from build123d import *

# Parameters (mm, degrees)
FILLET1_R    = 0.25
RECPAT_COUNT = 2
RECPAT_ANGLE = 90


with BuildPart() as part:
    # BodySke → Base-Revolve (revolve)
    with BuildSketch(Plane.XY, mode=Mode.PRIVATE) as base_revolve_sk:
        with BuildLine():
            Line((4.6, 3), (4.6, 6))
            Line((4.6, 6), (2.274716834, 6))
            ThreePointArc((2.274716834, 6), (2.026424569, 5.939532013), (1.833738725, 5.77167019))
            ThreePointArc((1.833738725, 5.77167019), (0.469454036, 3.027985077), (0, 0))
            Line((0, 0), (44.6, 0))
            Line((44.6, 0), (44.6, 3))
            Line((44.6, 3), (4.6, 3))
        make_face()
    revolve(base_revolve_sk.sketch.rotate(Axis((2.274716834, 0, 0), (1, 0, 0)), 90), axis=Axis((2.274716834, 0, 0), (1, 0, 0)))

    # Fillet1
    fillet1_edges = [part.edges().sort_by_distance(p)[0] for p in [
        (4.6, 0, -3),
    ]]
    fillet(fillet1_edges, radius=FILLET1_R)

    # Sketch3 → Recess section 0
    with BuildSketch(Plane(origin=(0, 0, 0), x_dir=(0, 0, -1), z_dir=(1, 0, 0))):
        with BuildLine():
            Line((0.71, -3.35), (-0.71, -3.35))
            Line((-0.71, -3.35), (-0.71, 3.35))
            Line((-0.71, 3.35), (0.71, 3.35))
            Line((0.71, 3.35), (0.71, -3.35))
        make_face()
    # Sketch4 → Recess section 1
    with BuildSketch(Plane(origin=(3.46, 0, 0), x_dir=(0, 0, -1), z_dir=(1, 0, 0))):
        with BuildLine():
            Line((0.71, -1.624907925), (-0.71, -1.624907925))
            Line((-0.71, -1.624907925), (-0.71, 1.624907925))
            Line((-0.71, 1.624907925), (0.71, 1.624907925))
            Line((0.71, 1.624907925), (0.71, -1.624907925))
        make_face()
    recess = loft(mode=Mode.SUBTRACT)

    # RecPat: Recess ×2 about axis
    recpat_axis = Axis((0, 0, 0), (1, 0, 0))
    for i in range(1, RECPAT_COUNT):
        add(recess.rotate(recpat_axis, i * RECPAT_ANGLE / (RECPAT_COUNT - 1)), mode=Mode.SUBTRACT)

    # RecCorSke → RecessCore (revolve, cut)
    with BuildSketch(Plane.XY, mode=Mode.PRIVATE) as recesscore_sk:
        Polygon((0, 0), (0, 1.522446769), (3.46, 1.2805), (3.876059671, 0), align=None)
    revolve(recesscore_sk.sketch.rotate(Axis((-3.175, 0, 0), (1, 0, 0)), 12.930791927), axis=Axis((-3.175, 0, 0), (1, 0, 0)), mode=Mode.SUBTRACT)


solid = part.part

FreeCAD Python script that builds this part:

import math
import FreeCAD as App
import Part
import Sketcher
Q = App.Units.Quantity


def edges_at(feature, points):
    """Names of the edges that pass closest to the given points."""
    edges = feature.Shape.Edges
    near = lambda p: min(range(len(edges)), key=lambda i: edges[i].distToShape(Part.Vertex(*p))[0])
    return sorted({f"Edge{near(p) + 1}" for p in points})


def add_polygon(sketch, points):
    """Adds a closed chain of lines whose ends are joined by coincident constraints."""
    first, n = sketch.GeometryCount, len(points)
    for a, b in zip(points, points[1:] + points[:1]):
        sketch.addGeometry(Part.LineSegment(App.Vector(*a, 0), App.Vector(*b, 0)), False)
    for i in range(n):
        sketch.addConstraint(Sketcher.Constraint("Coincident", first + i, 2, first + (i + 1) % n, 1))

doc = App.newDocument("Part")
body = doc.addObject("PartDesign::Body", "Body")

# Sketch on XY plane
sketch1 = doc.addObject("Sketcher::SketchObject", "Sketch")
body.addObject(sketch1)
sketch1.AttachmentSupport = (doc.XY_Plane, [""])
sketch1.MapMode = "FlatFace"
sketch1.addGeometry([
    Part.LineSegment(App.Vector(4.6, 3, 0), App.Vector(4.6, 6, 0)),  # 0
    Part.LineSegment(App.Vector(4.6, 6, 0), App.Vector(2.27, 6, 0)),  # 1
    Part.ArcOfCircle(Part.Circle(App.Vector(2.27, 5.46, 0), App.Vector(0, 0, 1), 0.54), math.radians(90), math.radians(145)),  # 2
    Part.ArcOfCircle(Part.Circle(App.Vector(10, 0, 0), App.Vector(0, 0, 1), 10), math.radians(145), math.radians(180)),  # 3
    Part.LineSegment(App.Vector(0, 0, 0), App.Vector(44.6, 0, 0)),  # 4
    Part.LineSegment(App.Vector(44.6, 0, 0), App.Vector(44.6, 3, 0)),  # 5
    Part.LineSegment(App.Vector(44.6, 3, 0), App.Vector(4.6, 3, 0)),  # 6
], False)
sketch1.addConstraint([
    Sketcher.Constraint("Coincident", 0, 2, 1, 1),
    Sketcher.Constraint("Tangent", 1, 2, 2, 1),
    Sketcher.Constraint("Tangent", 2, 2, 3, 1),
    Sketcher.Constraint("Coincident", 3, 2, 4, 1),
    Sketcher.Constraint("Coincident", 4, 2, 5, 1),
    Sketcher.Constraint("Coincident", 5, 2, 6, 1),
    Sketcher.Constraint("Coincident", 6, 2, 0, 1),
    Sketcher.Constraint("Vertical", 0),
    Sketcher.Constraint("Horizontal", 1),
    Sketcher.Constraint("Horizontal", 4),
    Sketcher.Constraint("Vertical", 5),
    Sketcher.Constraint("Horizontal", 6),
    Sketcher.Constraint("Coincident", 3, 2, -1, 1),
    Sketcher.Constraint("PointOnObject", 3, 3, -1),
    Sketcher.Constraint("Equal", 0, 5),
    Sketcher.Constraint("Radius", 3, Q("10 mm")),
    Sketcher.Constraint("DistanceX", 6, 2, 6, 1, Q("40 mm")),
    Sketcher.Constraint("DistanceY", 0, 1, 0, 2, Q("3 mm")),
    Sketcher.Constraint("Radius", 2, Q("0.54 mm")),
    Sketcher.Constraint("DistanceX", 4, 1, 4, 2, Q("44.6 mm")),
])
revolution = doc.addObject("PartDesign::Revolution", "Revolution")
body.addObject(revolution)
revolution.Profile = sketch1
revolution.ReferenceAxis = (sketch1, ["H_Axis"])
revolution.Angle = 360
doc.recompute()

fillet = doc.addObject("PartDesign::Fillet", "Fillet")
body.addObject(fillet)
fillet.Base = (revolution, edges_at(revolution, [(4.6, 0, -3)]))
fillet.Radius = 0.25

# Sketch on YZ plane
sketch2 = doc.addObject("Sketcher::SketchObject", "Sketch001")
body.addObject(sketch2)
sketch2.AttachmentSupport = (doc.YZ_Plane, [""])
sketch2.MapMode = "FlatFace"
add_polygon(sketch2, [(-3.4, 0.7), (-3.4, -0.7), (3.4, -0.7), (3.4, 0.7)])  # lines 0-3
sketch2.addConstraint([
    Sketcher.Constraint("Vertical", 0),
    Sketcher.Constraint("Horizontal", 1),
    Sketcher.Constraint("Vertical", 2),
    Sketcher.Constraint("Horizontal", 3),
    Sketcher.Constraint("Symmetric", 0, 2, 2, 2, -1, 1),
    Sketcher.Constraint("DistanceX", 1, 1, 1, 2, Q("6.7 mm")),
    Sketcher.Constraint("DistanceY", 0, 2, 0, 1, Q("1.42 mm")),
])

# Sketch on YZ plane
sketch3 = doc.addObject("Sketcher::SketchObject", "Sketch002")
body.addObject(sketch3)
sketch3.AttachmentSupport = (doc.YZ_Plane, [""])
sketch3.MapMode = "FlatFace"
sketch3.AttachmentOffset = App.Placement(App.Vector(0, 0, 3.46), App.Rotation())
add_polygon(sketch3, [(-1.6, 0.7), (-1.6, -0.7), (1.6, -0.7), (1.6, 0.7)])  # lines 0-3
sketch3.addConstraint([
    Sketcher.Constraint("Vertical", 0),
    Sketcher.Constraint("Horizontal", 1),
    Sketcher.Constraint("Vertical", 2),
    Sketcher.Constraint("Horizontal", 3),
    Sketcher.Constraint("Symmetric", 0, 2, 2, 2, -1, 1),
    Sketcher.Constraint("DistanceY", 0, 2, 0, 1, Q("1.42 mm")),
    Sketcher.Constraint("DistanceX", 1, 1, 1, 2, Q("3.249816 mm")),
])

subtractiveloft = doc.addObject("PartDesign::SubtractiveLoft", "SubtractiveLoft")
body.addObject(subtractiveloft)
subtractiveloft.Profile = sketch2
subtractiveloft.Sections = [sketch3]
doc.recompute()

polarpattern = doc.addObject("PartDesign::PolarPattern", "PolarPattern")
body.addObject(polarpattern)
polarpattern.Originals = [subtractiveloft]
polarpattern.Axis = (doc.X_Axis, [""])
polarpattern.Angle = 90
polarpattern.Occurrences = 2
body.Tip = polarpattern

# Sketch on XY plane
sketch4 = doc.addObject("Sketcher::SketchObject", "Sketch003")
body.addObject(sketch4)
sketch4.AttachmentSupport = (doc.XY_Plane, [""])
sketch4.MapMode = "FlatFace"
add_polygon(sketch4, [(0, 1.5), (0, 0), (3.9, 0), (3.5, 1.3)])  # lines 0-3
sketch4.addConstraint([
    Sketcher.Constraint("Vertical", 0),
    Sketcher.Constraint("Horizontal", 1),
    Sketcher.Constraint("Coincident", 0, 2, -1, 1),
    Sketcher.Constraint("Angle", 2, Q("108 deg")),
    Sketcher.Constraint("Angle", 3, Q("176 deg")),
    Sketcher.Constraint("DistanceX", -1, 1, 2, 2, Q("3.46 mm")),
    Sketcher.Constraint("DistanceX", 1, 1, 1, 2, Q("3.87606 mm")),
])
groove = doc.addObject("PartDesign::Groove", "Groove")
body.addObject(groove)
groove.Profile = sketch4
groove.ReferenceAxis = (sketch4, ["H_Axis"])
groove.Angle = 360

doc.recompute()
